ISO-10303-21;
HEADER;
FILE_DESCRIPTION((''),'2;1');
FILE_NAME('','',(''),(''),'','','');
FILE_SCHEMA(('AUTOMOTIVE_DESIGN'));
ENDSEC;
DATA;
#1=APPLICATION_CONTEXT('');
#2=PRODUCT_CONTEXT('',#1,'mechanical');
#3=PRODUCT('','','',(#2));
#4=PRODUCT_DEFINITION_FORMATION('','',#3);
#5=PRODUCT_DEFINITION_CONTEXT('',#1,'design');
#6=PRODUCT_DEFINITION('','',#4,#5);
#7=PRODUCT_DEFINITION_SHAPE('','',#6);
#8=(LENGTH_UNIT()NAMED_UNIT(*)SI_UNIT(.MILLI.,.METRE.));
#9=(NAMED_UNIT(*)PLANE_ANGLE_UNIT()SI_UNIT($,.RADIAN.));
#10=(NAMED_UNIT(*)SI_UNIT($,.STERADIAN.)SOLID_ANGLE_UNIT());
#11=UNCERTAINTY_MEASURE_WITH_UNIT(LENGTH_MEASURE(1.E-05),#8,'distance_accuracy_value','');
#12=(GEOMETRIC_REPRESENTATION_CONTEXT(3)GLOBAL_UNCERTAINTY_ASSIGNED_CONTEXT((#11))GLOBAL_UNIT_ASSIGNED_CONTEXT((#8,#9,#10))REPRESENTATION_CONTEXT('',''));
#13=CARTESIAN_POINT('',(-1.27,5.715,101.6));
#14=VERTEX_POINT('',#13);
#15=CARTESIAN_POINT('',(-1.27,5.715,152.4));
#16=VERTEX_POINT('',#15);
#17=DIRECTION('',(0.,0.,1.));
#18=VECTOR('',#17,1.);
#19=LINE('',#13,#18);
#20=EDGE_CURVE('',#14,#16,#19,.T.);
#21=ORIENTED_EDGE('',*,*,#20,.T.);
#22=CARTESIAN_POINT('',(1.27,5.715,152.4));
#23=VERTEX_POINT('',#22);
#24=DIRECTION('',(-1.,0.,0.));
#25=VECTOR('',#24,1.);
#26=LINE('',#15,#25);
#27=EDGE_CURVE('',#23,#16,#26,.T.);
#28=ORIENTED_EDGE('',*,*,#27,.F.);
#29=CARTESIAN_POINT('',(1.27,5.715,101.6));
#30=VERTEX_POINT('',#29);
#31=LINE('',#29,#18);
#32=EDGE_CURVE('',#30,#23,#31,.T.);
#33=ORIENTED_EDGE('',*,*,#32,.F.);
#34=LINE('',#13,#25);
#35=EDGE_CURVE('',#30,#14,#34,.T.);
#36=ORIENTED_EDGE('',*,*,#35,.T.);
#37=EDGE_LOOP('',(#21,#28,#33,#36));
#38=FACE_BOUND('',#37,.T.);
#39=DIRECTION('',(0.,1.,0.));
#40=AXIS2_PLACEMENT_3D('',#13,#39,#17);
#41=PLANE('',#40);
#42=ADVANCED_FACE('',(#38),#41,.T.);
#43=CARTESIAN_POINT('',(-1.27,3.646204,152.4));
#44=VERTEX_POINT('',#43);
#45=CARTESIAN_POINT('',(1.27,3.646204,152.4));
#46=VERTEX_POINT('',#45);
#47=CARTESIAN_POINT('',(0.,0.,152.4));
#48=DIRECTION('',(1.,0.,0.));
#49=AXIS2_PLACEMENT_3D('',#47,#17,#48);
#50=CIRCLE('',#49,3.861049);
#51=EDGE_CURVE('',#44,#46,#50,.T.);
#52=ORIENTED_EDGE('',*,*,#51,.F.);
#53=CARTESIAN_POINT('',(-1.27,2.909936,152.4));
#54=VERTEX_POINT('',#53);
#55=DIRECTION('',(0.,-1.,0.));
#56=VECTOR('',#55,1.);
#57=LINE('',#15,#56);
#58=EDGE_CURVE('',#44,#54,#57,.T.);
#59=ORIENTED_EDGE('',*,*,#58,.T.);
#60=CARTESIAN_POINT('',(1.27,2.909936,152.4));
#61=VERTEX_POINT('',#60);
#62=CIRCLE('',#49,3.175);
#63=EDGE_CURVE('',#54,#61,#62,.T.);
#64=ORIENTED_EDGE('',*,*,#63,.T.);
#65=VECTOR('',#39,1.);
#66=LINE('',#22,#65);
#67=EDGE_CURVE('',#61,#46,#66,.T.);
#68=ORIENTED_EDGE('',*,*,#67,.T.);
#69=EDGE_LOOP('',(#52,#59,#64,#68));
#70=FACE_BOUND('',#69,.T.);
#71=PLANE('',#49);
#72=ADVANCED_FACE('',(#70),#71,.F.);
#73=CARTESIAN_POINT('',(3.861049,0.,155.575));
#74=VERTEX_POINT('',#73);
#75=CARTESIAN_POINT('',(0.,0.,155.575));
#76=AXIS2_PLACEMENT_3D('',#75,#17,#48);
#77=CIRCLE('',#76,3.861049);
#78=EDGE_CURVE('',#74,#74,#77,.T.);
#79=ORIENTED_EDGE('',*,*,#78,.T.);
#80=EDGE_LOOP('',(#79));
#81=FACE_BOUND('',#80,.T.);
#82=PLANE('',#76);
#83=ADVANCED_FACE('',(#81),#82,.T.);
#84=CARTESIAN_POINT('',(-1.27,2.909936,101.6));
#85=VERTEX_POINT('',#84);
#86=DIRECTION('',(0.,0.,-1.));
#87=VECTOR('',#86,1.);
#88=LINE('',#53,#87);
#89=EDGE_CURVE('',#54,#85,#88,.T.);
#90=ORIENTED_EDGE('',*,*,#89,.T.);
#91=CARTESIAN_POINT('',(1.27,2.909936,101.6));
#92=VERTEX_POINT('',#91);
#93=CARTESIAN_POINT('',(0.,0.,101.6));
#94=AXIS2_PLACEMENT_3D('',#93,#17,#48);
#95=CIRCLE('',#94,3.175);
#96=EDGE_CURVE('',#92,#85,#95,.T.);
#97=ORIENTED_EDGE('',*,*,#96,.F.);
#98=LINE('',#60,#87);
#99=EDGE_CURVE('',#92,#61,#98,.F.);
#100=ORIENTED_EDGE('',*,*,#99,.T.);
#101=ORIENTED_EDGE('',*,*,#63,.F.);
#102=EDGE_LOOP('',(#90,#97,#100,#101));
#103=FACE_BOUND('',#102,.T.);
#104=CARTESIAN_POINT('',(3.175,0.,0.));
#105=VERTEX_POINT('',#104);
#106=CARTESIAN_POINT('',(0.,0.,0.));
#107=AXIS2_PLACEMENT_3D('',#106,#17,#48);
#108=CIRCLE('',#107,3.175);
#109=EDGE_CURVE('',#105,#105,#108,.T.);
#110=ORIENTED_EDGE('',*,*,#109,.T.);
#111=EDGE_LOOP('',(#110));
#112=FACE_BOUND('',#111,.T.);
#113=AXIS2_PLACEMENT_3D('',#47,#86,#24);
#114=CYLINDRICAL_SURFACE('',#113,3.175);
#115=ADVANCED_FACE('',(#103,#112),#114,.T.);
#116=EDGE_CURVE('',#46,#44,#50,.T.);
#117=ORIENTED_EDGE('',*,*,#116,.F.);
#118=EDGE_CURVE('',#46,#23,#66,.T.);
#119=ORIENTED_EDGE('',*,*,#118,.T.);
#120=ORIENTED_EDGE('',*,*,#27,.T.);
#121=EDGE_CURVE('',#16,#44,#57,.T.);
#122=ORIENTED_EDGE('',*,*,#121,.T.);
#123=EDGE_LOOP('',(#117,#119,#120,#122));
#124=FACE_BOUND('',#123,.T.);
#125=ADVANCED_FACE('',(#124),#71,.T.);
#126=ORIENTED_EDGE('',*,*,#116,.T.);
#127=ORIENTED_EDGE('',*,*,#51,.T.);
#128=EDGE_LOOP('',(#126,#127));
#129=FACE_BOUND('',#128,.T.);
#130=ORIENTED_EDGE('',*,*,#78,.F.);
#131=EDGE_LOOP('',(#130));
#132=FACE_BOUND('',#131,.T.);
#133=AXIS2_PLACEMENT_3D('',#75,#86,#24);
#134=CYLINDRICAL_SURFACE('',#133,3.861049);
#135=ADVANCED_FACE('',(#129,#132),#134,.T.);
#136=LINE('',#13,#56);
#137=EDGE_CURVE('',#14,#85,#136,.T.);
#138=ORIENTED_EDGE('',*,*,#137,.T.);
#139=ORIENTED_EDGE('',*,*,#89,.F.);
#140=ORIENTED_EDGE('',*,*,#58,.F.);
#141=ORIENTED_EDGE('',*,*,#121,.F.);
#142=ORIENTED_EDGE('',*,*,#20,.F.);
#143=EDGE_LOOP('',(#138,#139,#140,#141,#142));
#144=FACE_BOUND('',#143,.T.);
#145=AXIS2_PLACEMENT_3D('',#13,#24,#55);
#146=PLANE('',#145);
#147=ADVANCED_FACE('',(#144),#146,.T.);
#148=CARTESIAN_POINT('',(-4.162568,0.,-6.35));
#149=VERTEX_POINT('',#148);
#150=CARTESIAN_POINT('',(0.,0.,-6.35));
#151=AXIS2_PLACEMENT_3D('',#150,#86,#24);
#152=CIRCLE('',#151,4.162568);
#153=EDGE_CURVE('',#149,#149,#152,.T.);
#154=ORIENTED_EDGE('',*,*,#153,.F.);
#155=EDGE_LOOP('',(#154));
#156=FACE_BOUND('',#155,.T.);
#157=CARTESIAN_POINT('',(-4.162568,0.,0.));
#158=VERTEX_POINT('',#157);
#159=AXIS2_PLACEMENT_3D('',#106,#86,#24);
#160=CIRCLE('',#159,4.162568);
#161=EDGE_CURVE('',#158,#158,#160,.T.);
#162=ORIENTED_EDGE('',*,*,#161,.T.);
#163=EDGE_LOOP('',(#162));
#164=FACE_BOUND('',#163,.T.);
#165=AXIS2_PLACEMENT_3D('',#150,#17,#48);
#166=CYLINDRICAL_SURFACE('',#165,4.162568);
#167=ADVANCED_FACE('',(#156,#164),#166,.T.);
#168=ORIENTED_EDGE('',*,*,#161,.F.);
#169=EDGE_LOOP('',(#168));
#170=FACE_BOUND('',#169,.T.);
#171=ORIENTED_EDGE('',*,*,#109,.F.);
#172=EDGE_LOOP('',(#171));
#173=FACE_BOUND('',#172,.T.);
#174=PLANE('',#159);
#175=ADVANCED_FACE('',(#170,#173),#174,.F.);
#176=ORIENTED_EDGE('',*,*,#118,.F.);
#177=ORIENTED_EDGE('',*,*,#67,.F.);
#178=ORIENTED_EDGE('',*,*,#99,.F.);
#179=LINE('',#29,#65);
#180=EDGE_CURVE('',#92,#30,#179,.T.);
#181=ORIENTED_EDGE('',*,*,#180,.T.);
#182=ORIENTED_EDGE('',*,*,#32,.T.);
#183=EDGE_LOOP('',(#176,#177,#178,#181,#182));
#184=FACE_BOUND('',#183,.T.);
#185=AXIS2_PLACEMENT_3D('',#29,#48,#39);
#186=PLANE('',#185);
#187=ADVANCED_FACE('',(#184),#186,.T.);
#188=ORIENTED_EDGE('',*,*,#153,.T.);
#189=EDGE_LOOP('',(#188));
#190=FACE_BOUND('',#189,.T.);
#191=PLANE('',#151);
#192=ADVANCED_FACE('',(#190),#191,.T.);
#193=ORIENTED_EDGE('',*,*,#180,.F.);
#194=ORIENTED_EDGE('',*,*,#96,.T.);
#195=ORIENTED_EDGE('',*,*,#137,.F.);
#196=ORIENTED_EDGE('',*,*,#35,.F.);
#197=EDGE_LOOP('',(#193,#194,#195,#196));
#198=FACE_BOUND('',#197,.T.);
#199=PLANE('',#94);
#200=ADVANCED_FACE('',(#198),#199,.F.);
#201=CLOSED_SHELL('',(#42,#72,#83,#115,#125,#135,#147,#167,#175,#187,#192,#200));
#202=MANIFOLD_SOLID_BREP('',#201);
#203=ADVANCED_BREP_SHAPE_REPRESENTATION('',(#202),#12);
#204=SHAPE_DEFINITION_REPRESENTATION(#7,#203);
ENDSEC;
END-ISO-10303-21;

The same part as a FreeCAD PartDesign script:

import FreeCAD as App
import Part
import Sketcher

V = App.Vector
Q = App.Units.Quantity


def add_polygon(sketch, points):
    """Adds a closed chain of lines whose ends are joined by coincident constraints."""
    first, n = sketch.GeometryCount, len(points)
    for a, b in zip(points, points[1:] + points[:1]):
        sketch.addGeometry(Part.LineSegment(App.Vector(*a, 0), App.Vector(*b, 0)), False)
    for i in range(n):
        sketch.addConstraint(Sketcher.Constraint("Coincident", first + i, 2, first + (i + 1) % n, 1))

doc = App.newDocument("Part")
body = doc.addObject("PartDesign::Body", "Body")

sketch1 = doc.addObject("Sketcher::SketchObject", "Sketch")
body.addObject(sketch1)
sketch1.AttachmentSupport = (doc.XY_Plane, [""])
sketch1.MapMode = "FlatFace"
sketch1.addGeometry(Part.Circle(V(0, 0, 0), V(0, 0, 1), 3.2), False)
sketch1.addConstraint([
    Sketcher.Constraint("Coincident", 0, 3, -1, 1),
    Sketcher.Constraint("Diameter", 0, Q("0.25 in")),
])
pad1 = doc.addObject("PartDesign::Pad", "Pad")
body.addObject(pad1)
pad1.Profile = sketch1
pad1.Length = Q("6 in")

sketch2 = doc.addObject("Sketcher::SketchObject", "Sketch001")
body.addObject(sketch2)
sketch2.AttachmentSupport = (doc.XY_Plane, [""])
sketch2.MapMode = "FlatFace"
sketch2.AttachmentOffset = App.Placement(V(0, 0, 6 * 25.4), App.Rotation())
add_polygon(sketch2, [(-1.3, 5.7), (-1.3, 0.6), (1.3, 0.6), (1.3, 5.7)])
sketch2.addConstraint([
    Sketcher.Constraint("Vertical", 0),
    Sketcher.Constraint("Horizontal", 1),
    Sketcher.Constraint("Vertical", 2),
    Sketcher.Constraint("Horizontal", 3),
    Sketcher.Constraint("DistanceX", 1, 1, 1, 2, Q("0.1 in")),
    Sketcher.Constraint("DistanceY", 0, 2, 0, 1, Q("0.2 in")),
    Sketcher.Constraint("DistanceX", 0, 2, -1, 1, Q("0.05 in")),
    Sketcher.Constraint("DistanceY", -1, 1, 0, 2, Q("0.025 in")),
])
pad2 = doc.addObject("PartDesign::Pad", "Pad001")
body.addObject(pad2)
pad2.Profile = sketch2
pad2.Length = Q("2 in")
pad2.Reversed = True

sketch3 = doc.addObject("Sketcher::SketchObject", "Sketch002")
body.addObject(sketch3)
sketch3.AttachmentSupport = (doc.XY_Plane, [""])
sketch3.MapMode = "FlatFace"
sketch3.addGeometry(Part.Circle(V(0, 0, 0), V(0, 0, 1), 4.2), False)
sketch3.addConstraint([
    Sketcher.Constraint("Coincident", 0, 3, -1, 1),
    Sketcher.Constraint("Diameter", 0, 8.325136),
])
pad3 = doc.addObject("PartDesign::Pad", "Pad002")
body.addObject(pad3)
pad3.Profile = sketch3
pad3.Length = Q("0.25 in")
pad3.Reversed = True

sketch4 = doc.addObject("Sketcher::SketchObject", "Sketch003")
body.addObject(sketch4)
sketch4.AttachmentSupport = (doc.XY_Plane, [""])
sketch4.MapMode = "FlatFace"
sketch4.AttachmentOffset = App.Placement(V(0, 0, 6 * 25.4), App.Rotation())
sketch4.addGeometry(Part.Circle(V(0, 0, 0), V(0, 0, 1), 3.9), False)
sketch4.addConstraint([
    Sketcher.Constraint("Coincident", 0, 3, -1, 1),
    Sketcher.Constraint("Diameter", 0, 7.722098),
])
pad4 = doc.addObject("PartDesign::Pad", "Pad003")
body.addObject(pad4)
pad4.Profile = sketch4
pad4.Length = Q("0.125 in")

doc.recompute()
